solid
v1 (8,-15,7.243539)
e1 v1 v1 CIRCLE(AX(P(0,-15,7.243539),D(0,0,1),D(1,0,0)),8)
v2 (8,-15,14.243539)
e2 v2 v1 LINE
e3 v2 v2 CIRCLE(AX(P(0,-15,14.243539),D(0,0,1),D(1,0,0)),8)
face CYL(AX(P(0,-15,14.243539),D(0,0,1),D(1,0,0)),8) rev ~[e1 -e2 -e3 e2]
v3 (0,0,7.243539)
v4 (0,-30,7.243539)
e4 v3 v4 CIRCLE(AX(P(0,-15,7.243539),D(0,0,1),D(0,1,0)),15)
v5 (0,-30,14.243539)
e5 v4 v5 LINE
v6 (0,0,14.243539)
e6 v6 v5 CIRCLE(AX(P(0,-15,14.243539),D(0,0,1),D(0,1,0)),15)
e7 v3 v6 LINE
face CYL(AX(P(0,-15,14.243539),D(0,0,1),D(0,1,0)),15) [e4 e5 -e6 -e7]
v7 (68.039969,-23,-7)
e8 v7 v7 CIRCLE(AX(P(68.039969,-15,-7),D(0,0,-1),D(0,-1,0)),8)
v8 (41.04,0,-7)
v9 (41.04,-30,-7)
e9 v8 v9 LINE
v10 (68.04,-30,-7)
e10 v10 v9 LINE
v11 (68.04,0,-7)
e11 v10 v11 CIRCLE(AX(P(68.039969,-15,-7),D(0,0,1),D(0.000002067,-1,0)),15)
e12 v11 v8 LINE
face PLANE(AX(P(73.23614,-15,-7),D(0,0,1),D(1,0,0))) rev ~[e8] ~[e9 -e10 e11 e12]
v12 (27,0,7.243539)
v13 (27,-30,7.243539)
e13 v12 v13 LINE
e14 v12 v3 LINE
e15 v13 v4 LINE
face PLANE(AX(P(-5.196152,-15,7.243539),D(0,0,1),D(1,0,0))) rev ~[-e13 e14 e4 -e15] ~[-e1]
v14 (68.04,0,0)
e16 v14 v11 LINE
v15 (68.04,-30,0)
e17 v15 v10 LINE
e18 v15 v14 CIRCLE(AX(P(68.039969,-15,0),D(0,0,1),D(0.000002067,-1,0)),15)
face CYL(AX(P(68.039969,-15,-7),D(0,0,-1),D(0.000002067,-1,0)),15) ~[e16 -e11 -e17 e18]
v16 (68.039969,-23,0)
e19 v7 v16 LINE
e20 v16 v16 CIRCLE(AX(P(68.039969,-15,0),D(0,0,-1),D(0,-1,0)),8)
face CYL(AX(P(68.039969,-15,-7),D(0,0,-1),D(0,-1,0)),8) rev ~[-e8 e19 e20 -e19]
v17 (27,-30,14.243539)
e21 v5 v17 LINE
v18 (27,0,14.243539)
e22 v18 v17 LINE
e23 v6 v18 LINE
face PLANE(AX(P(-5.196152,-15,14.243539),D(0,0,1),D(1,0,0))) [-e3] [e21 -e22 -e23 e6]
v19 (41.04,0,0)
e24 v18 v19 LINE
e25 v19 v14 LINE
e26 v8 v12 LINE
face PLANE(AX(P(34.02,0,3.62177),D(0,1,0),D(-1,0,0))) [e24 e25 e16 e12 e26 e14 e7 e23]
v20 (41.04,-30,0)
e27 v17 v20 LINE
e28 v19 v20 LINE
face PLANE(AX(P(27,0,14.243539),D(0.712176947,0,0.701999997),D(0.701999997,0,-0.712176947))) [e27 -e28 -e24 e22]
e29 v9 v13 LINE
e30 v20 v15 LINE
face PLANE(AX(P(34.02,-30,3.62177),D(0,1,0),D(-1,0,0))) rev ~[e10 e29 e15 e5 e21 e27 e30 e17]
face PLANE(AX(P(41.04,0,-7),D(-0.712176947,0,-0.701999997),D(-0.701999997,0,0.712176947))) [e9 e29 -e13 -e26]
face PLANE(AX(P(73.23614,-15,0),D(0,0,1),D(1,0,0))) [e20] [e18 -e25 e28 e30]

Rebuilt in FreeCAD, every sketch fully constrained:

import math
import FreeCAD as App
import Part
import Sketcher


def add_polygon(sketch, points):
    """Adds a closed chain of lines whose ends are joined by coincident constraints."""
    first, n = sketch.GeometryCount, len(points)
    for a, b in zip(points, points[1:] + points[:1]):
        sketch.addGeometry(Part.LineSegment(App.Vector(*a, 0), App.Vector(*b, 0)), False)
    for i in range(n):
        sketch.addConstraint(Sketcher.Constraint("Coincident", first + i, 2, first + (i + 1) % n, 1))

doc = App.newDocument("Part")
body = doc.addObject("PartDesign::Body", "Body")

# Sketch on XZ plane
sketch1 = body.newObject("Sketcher::SketchObject", "Sketch")
sketch1.AttachmentSupport = (doc.getObject("XZ_Plane"), [""])
sketch1.MapMode = "FlatFace"
add_polygon(sketch1, [(27, 14), (0, 14), (0, 7), (27, 7), (41, -7), (68, -7), (68, 0), (41, 0)])  # lines 0-7
sketch1.addConstraint(Sketcher.Constraint("Horizontal", 0))
sketch1.addConstraint(Sketcher.Constraint("Vertical", 1))
sketch1.addConstraint(Sketcher.Constraint("Horizontal", 2))
sketch1.addConstraint(Sketcher.Constraint("Horizontal", 4))
sketch1.addConstraint(Sketcher.Constraint("Vertical", 5))
sketch1.addConstraint(Sketcher.Constraint("Horizontal", 6))
sketch1.addConstraint(Sketcher.Constraint("PointOnObject", 0, 2, -2))
sketch1.addConstraint(Sketcher.Constraint("PointOnObject", 5, 2, -1))
sketch1.addConstraint(Sketcher.Constraint("Parallel", 3, 7))
sketch1.addConstraint(Sketcher.Constraint("Vertical", 3, 2, 6, 2))
sketch1.addConstraint(Sketcher.Constraint("Vertical", 2, 2, 7, 2))
sketch1.addConstraint(Sketcher.Constraint("Equal", 2, 4))
sketch1.addConstraint(Sketcher.Constraint("DistanceX", 0, 2, 0, 1, 27.0))
sketch1.addConstraint(Sketcher.Constraint("DistanceY", 1, 2, 1, 1, 7.0))
sketch1.addConstraint(Sketcher.Constraint("Distance", 3, 20.0))
sketch1.addConstraint(Sketcher.Constraint("DistanceX", -1, 1, 3, 2, 41.04))
pad1 = body.newObject("PartDesign::Pad", "Pad")
pad1.Profile = sketch1
pad1.Length = 30

# Sketch on XY plane
sketch2 = body.newObject("Sketcher::SketchObject", "Sketch001")
sketch2.AttachmentSupport = (doc.getObject("XY_Plane"), [""])
sketch2.MapMode = "FlatFace"
sketch2.AttachmentOffset = App.Placement(App.Vector(0, 0, 14.243539), App.Rotation())
sketch2.addGeometry(Part.ArcOfCircle(Part.Circle(App.Vector(0, -15, 0), App.Vector(0, 0, 1), 15), math.radians(90), math.radians(270)), False)
sketch2.addGeometry(Part.LineSegment(App.Vector(0, -30, 0), App.Vector(0, 0, 0)), False)
sketch2.addConstraint(Sketcher.Constraint("Coincident", 0, 1, 1, 2))
sketch2.addConstraint(Sketcher.Constraint("Coincident", 1, 1, 0, 2))
sketch2.addConstraint(Sketcher.Constraint("Vertical", 1))
sketch2.addConstraint(Sketcher.Constraint("Coincident", 0, 1, -1, 1))
sketch2.addConstraint(Sketcher.Constraint("PointOnObject", 0, 3, -2))
sketch2.addConstraint(Sketcher.Constraint("Radius", 0, 15.0))
pad2 = body.newObject("PartDesign::Pad", "Pad001")
pad2.Profile = sketch2
pad2.Length = 7
pad2.Reversed = True

# Sketch on XY plane
sketch3 = body.newObject("Sketcher::SketchObject", "Sketch002")
sketch3.AttachmentSupport = (doc.getObject("XY_Plane"), [""])
sketch3.MapMode = "FlatFace"
sketch3.AttachmentOffset = App.Placement(App.Vector(0, 0, -7), App.Rotation())
sketch3.addGeometry(Part.ArcOfCircle(Part.Circle(App.Vector(68, -15, 0), App.Vector(0, 0, 1), 15), math.radians(-90), math.radians(90)), False)
sketch3.addGeometry(Part.LineSegment(App.Vector(68, 0, 0), App.Vector(68, -30, 0)), False)
sketch3.addConstraint(Sketcher.Constraint("Coincident", 0, 1, 1, 2))
sketch3.addConstraint(Sketcher.Constraint("Coincident", 1, 1, 0, 2))
sketch3.addConstraint(Sketcher.Constraint("Vertical", 1))
sketch3.addConstraint(Sketcher.Constraint("PointOnObject", 1, 1, -1))
sketch3.addConstraint(Sketcher.Constraint("Radius", 0, 15.0))
sketch3.addConstraint(Sketcher.Constraint("DistanceX", -1, 1, 0, 1, 68.04))
sketch3.addConstraint(Sketcher.Constraint("DistanceX", -1, 1, 0, 3, 68.039969))
pad3 = body.newObject("PartDesign::Pad", "Pad002")
pad3.Profile = sketch3
pad3.Length = 7

# Sketch on XY plane
sketch4 = body.newObject("Sketcher::SketchObject", "Sketch003")
sketch4.AttachmentSupport = (doc.getObject("XY_Plane"), [""])
sketch4.MapMode = "FlatFace"
sketch4.AttachmentOffset = App.Placement(App.Vector(0, 0, -7), App.Rotation())
sketch4.addGeometry(Part.Circle(App.Vector(68, -15, 0), App.Vector(0, 0, 1), 8), False)
sketch4.addConstraint(Sketcher.Constraint("Diameter", 0, 16.0))
sketch4.addConstraint(Sketcher.Constraint("DistanceY", 0, 3, -1, 1, 15.0))
sketch4.addConstraint(Sketcher.Constraint("DistanceX", -1, 1, 0, 3, 68.039969))
pocket1 = body.newObject("PartDesign::Pocket", "Pocket")
pocket1.Profile = sketch4
pocket1.Type = "ThroughAll"
pocket1.Reversed = True

# Sketch on XY plane
sketch5 = body.newObject("Sketcher::SketchObject", "Sketch004")
sketch5.AttachmentSupport = (doc.getObject("XY_Plane"), [""])
sketch5.MapMode = "FlatFace"
sketch5.AttachmentOffset = App.Placement(App.Vector(0, 0, 14.243539), App.Rotation())
sketch5.addGeometry(Part.Circle(App.Vector(0, -15, 0), App.Vector(0, 0, 1), 8), False)
sketch5.addConstraint(Sketcher.Constraint("PointOnObject", 0, 3, -2))
sketch5.addConstraint(Sketcher.Constraint("Diameter", 0, 16.0))
sketch5.addConstraint(Sketcher.Constraint("DistanceY", 0, 3, -1, 1, 15.0))
pocket2 = body.newObject("PartDesign::Pocket", "Pocket001")
pocket2.Profile = sketch5
pocket2.Type = "ThroughAll"

doc.recompute()
